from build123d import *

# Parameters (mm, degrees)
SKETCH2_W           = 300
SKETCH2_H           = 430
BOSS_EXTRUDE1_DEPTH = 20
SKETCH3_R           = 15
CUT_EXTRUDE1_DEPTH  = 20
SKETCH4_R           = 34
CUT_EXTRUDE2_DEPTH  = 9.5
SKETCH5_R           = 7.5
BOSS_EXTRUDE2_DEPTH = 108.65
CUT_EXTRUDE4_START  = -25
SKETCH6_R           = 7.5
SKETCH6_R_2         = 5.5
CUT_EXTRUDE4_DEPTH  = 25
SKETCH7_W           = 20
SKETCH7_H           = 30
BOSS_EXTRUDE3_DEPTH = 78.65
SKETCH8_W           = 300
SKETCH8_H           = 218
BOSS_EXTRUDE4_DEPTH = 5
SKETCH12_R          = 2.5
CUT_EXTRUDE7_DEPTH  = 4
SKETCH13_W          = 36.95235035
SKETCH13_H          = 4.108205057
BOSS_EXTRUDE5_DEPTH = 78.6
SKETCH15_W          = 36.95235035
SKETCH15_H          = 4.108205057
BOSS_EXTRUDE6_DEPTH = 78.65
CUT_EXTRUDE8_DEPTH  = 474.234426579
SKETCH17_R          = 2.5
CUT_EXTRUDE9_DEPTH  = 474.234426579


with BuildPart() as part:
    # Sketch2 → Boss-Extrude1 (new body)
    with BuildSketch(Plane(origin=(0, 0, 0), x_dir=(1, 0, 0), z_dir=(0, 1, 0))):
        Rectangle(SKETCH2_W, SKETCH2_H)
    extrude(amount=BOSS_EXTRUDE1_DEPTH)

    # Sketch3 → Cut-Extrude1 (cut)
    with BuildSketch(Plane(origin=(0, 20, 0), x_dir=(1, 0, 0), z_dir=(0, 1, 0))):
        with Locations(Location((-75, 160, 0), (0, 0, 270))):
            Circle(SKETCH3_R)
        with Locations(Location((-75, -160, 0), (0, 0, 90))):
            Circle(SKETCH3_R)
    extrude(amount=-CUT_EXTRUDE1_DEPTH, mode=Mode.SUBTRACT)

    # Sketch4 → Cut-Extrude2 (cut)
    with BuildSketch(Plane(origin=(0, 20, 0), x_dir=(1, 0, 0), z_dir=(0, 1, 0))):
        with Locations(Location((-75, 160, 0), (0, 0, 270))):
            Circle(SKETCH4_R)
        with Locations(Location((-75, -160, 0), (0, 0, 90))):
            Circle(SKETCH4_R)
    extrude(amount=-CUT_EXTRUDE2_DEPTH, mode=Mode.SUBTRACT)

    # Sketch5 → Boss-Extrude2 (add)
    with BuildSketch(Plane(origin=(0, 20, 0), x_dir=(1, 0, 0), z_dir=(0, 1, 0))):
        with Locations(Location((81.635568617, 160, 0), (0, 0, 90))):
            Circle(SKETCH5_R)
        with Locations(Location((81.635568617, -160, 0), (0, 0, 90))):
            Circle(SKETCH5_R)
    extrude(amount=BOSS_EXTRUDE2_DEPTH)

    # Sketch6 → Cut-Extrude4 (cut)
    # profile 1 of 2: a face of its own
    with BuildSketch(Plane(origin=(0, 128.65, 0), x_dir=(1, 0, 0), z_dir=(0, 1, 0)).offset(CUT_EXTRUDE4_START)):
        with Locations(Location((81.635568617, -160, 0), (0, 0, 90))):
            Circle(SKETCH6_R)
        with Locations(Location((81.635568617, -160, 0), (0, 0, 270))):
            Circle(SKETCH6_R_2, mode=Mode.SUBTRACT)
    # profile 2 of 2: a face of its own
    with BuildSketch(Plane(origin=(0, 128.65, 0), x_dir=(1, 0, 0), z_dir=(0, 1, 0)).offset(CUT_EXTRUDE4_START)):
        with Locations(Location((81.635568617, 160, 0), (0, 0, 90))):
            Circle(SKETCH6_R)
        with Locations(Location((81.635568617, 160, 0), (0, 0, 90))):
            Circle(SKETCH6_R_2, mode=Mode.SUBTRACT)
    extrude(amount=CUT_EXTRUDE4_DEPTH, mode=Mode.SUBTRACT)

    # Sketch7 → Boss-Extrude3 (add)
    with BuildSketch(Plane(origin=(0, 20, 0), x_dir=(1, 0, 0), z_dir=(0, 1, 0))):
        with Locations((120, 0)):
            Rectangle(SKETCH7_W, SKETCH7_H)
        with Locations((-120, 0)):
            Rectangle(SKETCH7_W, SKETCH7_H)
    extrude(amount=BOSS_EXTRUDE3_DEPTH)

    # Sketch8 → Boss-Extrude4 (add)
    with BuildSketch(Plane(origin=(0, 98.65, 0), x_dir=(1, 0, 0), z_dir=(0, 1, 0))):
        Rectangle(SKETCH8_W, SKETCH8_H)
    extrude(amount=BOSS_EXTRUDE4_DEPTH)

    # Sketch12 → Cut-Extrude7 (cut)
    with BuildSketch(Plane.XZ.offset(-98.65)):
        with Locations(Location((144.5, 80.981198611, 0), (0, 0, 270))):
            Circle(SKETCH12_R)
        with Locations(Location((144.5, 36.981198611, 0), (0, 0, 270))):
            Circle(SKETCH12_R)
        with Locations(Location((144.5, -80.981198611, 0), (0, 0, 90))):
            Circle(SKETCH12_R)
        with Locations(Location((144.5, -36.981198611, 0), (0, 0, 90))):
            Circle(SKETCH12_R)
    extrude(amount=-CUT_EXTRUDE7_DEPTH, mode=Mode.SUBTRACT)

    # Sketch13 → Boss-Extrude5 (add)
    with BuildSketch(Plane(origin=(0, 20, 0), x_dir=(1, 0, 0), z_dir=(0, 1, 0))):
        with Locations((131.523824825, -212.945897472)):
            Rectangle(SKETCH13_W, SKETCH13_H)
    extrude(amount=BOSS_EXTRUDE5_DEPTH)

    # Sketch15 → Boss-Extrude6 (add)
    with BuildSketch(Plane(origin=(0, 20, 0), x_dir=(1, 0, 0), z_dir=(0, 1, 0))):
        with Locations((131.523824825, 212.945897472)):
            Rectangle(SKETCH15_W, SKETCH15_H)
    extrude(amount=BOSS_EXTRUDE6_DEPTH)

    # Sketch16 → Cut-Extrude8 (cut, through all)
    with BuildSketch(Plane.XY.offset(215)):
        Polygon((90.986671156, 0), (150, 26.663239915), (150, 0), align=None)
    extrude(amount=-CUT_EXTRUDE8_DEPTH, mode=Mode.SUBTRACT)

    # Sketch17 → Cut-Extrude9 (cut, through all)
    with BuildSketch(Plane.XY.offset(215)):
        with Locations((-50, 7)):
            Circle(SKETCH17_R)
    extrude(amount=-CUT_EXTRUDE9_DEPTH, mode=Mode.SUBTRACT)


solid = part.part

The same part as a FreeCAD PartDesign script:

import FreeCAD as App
import Part
import Sketcher

V = App.Vector
Q = App.Units.Quantity

doc = App.newDocument("Part")
body = doc.addObject("PartDesign::Body", "Body")

sketch1 = body.newObject("Sketcher::SketchObject", "Sketch")
sketch1.AttachmentSupport = (doc.getObject("XZ_Plane"), [""])
sketch1.MapMode = "FlatFace"
sketch1.addGeometry(Part.LineSegment(V(-150, -215, 0), V(-150, 215, 0)), False)
sketch1.addGeometry(Part.LineSegment(V(-150, 215, 0), V(150, 215, 0)), False)
sketch1.addGeometry(Part.LineSegment(V(150, 215, 0), V(150, -215, 0)), False)
sketch1.addGeometry(Part.LineSegment(V(150, -215, 0), V(-150, -215, 0)), False)
sketch1.addConstraint(Sketcher.Constraint("Coincident", 0, 2, 1, 1))
sketch1.addConstraint(Sketcher.Constraint("Coincident", 1, 2, 2, 1))
sketch1.addConstraint(Sketcher.Constraint("Coincident", 2, 2, 3, 1))
sketch1.addConstraint(Sketcher.Constraint("Coincident", 3, 2, 0, 1))
sketch1.addConstraint(Sketcher.Constraint("Vertical", 0))
sketch1.addConstraint(Sketcher.Constraint("Horizontal", 1))
sketch1.addConstraint(Sketcher.Constraint("Vertical", 2))
sketch1.addConstraint(Sketcher.Constraint("Horizontal", 3))
sketch1.addConstraint(Sketcher.Constraint("Symmetric", 0, 2, 2, 2, -1, 1))
sketch1.addConstraint(Sketcher.Constraint("DistanceX", 1, 1, 1, 2, Q("300 mm")))
sketch1.addConstraint(Sketcher.Constraint("DistanceY", 0, 1, 0, 2, Q("430 mm")))
pad1 = body.newObject("PartDesign::Pad", "Pad")
pad1.Profile = sketch1
pad1.Length = 20
pad1.Reversed = True

sketch2 = body.newObject("Sketcher::SketchObject", "Sketch001")
sketch2.AttachmentSupport = (doc.getObject("XZ_Plane"), [""])
sketch2.MapMode = "FlatFace"
sketch2.AttachmentOffset = App.Placement(V(0, 0, -20), App.Rotation())
sketch2.addGeometry(Part.Circle(V(-75, -160, 0), V(0, 0, 1), 15), False)
sketch2.addGeometry(Part.Circle(V(-75, 160, 0), V(0, 0, 1), 15), False)
sketch2.addConstraint(Sketcher.Constraint("Equal", 0, 1))
sketch2.addConstraint(Sketcher.Constraint("Symmetric", 0, 3, 1, 3, -1))
sketch2.addConstraint(Sketcher.Constraint("Diameter", 0, Q("30 mm")))
sketch2.addConstraint(Sketcher.Constraint("DistanceX", 0, 3, -1, 1, Q("75 mm")))
sketch2.addConstraint(Sketcher.Constraint("DistanceY", 0, 3, -1, 1, Q("160 mm")))
pocket1 = body.newObject("PartDesign::Pocket", "Pocket")
pocket1.Profile = sketch2
pocket1.Length = 20
pocket1.Reversed = True

sketch3 = body.newObject("Sketcher::SketchObject", "Sketch002")
sketch3.AttachmentSupport = (doc.getObject("XZ_Plane"), [""])
sketch3.MapMode = "FlatFace"
sketch3.AttachmentOffset = App.Placement(V(0, 0, -20), App.Rotation())
sketch3.addGeometry(Part.Circle(V(-75, -160, 0), V(0, 0, 1), 34), False)
sketch3.addGeometry(Part.Circle(V(-75, 160, 0), V(0, 0, 1), 34), False)
sketch3.addConstraint(Sketcher.Constraint("Equal", 0, 1))
sketch3.addConstraint(Sketcher.Constraint("Symmetric", 0, 3, 1, 3, -1))
sketch3.addConstraint(Sketcher.Constraint("Diameter", 0, Q("68 mm")))
sketch3.addConstraint(Sketcher.Constraint("DistanceX", 0, 3, -1, 1, Q("75 mm")))
sketch3.addConstraint(Sketcher.Constraint("DistanceY", 0, 3, -1, 1, Q("160 mm")))
pocket2 = body.newObject("PartDesign::Pocket", "Pocket001")
pocket2.Profile = sketch3
pocket2.Length = 9.5
pocket2.Reversed = True

sketch4 = body.newObject("Sketcher::SketchObject", "Sketch003")
sketch4.AttachmentSupport = (doc.getObject("XZ_Plane"), [""])
sketch4.MapMode = "FlatFace"
sketch4.AttachmentOffset = App.Placement(V(0, 0, -20), App.Rotation())
sketch4.addGeometry(Part.Circle(V(81.635569, -160, 0), V(0, 0, 1), 7.5), False)
sketch4.addGeometry(Part.Circle(V(81.635569, 160, 0), V(0, 0, 1), 7.5), False)
sketch4.addConstraint(Sketcher.Constraint("Equal", 0, 1))
sketch4.addConstraint(Sketcher.Constraint("Symmetric", 0, 3, 1, 3, -1))
sketch4.addConstraint(Sketcher.Constraint("Diameter", 0, Q("15 mm")))
sketch4.addConstraint(Sketcher.Constraint("DistanceY", 0, 3, -1, 1, Q("160 mm")))
sketch4.addConstraint(Sketcher.Constraint("DistanceX", -1, 1, 0, 3, Q("81.635569 mm")))
pad2 = body.newObject("PartDesign::Pad", "Pad001")
pad2.Profile = sketch4
pad2.Length = 108.65
pad2.Reversed = True

sketch5 = body.newObject("Sketcher::SketchObject", "Sketch004")
sketch5.AttachmentSupport = (doc.getObject("XZ_Plane"), [""])
sketch5.MapMode = "FlatFace"
sketch5.AttachmentOffset = App.Placement(V(0, 0, -103.65), App.Rotation())
sketch5.addGeometry(Part.Circle(V(81.635569, 160, 0), V(0, 0, 1), 7.5), False)
sketch5.addGeometry(Part.Circle(V(81.635569, 160, 0), V(0, 0, 1), 5.5), False)
sketch5.addGeometry(Part.Circle(V(81.635569, -160, 0), V(0, 0, 1), 7.5), False)
sketch5.addGeometry(Part.Circle(V(81.635569, -160, 0), V(0, 0, 1), 5.5), False)
sketch5.addConstraint(Sketcher.Constraint("Coincident", 1, 3, 0, 3))
sketch5.addConstraint(Sketcher.Constraint("Coincident", 3, 3, 2, 3))
sketch5.addConstraint(Sketcher.Constraint("Equal", 0, 2))
sketch5.addConstraint(Sketcher.Constraint("Equal", 1, 3))
sketch5.addConstraint(Sketcher.Constraint("Symmetric", 0, 3, 2, 3, -1))
sketch5.addConstraint(Sketcher.Constraint("Diameter", 0, Q("15 mm")))
sketch5.addConstraint(Sketcher.Constraint("Diameter", 1, Q("11 mm")))
sketch5.addConstraint(Sketcher.Constraint("DistanceY", -1, 1, 0, 3, Q("160 mm")))
sketch5.addConstraint(Sketcher.Constraint("DistanceX", -1, 1, 0, 3, Q("81.635569 mm")))
pocket3 = body.newObject("PartDesign::Pocket", "Pocket002")
pocket3.Profile = sketch5
pocket3.Length = 25

sketch6 = body.newObject("Sketcher::SketchObject", "Sketch005")
sketch6.AttachmentSupport = (doc.getObject("XZ_Plane"), [""])
sketch6.MapMode = "FlatFace"
sketch6.AttachmentOffset = App.Placement(V(0, 0, -20), App.Rotation())
sketch6.addGeometry(Part.LineSegment(V(110, -15, 0), V(110, 15, 0)), False)
sketch6.addGeometry(Part.LineSegment(V(110, 15, 0), V(130, 15, 0)), False)
sketch6.addGeometry(Part.LineSegment(V(130, 15, 0), V(130, -15, 0)), False)
sketch6.addGeometry(Part.LineSegment(V(130, -15, 0), V(110, -15, 0)), False)
sketch6.addGeometry(Part.LineSegment(V(-130, -15, 0), V(-130, 15, 0)), False)
sketch6.addGeometry(Part.LineSegment(V(-130, 15, 0), V(-110, 15, 0)), False)
sketch6.addGeometry(Part.LineSegment(V(-110, 15, 0), V(-110, -15, 0)), False)
sketch6.addGeometry(Part.LineSegment(V(-110, -15, 0), V(-130, -15, 0)), False)
sketch6.addConstraint(Sketcher.Constraint("Coincident", 0, 2, 1, 1))
sketch6.addConstraint(Sketcher.Constraint("Coincident", 1, 2, 2, 1))
sketch6.addConstraint(Sketcher.Constraint("Coincident", 2, 2, 3, 1))
sketch6.addConstraint(Sketcher.Constraint("Coincident", 3, 2, 0, 1))
sketch6.addConstraint(Sketcher.Constraint("Coincident", 4, 2, 5, 1))
sketch6.addConstraint(Sketcher.Constraint("Coincident", 5, 2, 6, 1))
sketch6.addConstraint(Sketcher.Constraint("Coincident", 6, 2, 7, 1))
sketch6.addConstraint(Sketcher.Constraint("Coincident", 7, 2, 4, 1))
sketch6.addConstraint(Sketcher.Constraint("Vertical", 0))
sketch6.addConstraint(Sketcher.Constraint("Horizontal", 1))
sketch6.addConstraint(Sketcher.Constraint("Vertical", 2))
sketch6.addConstraint(Sketcher.Constraint("Horizontal", 3))
sketch6.addConstraint(Sketcher.Constraint("Vertical", 4))
sketch6.addConstraint(Sketcher.Constraint("Horizontal", 5))
sketch6.addConstraint(Sketcher.Constraint("Vertical", 6))
sketch6.addConstraint(Sketcher.Constraint("Horizontal", 7))
sketch6.addConstraint(Sketcher.Constraint("Symmetric", 2, 2, 4, 2, -1, 1))
sketch6.addConstraint(Sketcher.Constraint("Symmetric", 0, 2, 6, 2, -1, 1))
sketch6.addConstraint(Sketcher.Constraint("Horizontal", 1, 2, 4, 2))
sketch6.addConstraint(Sketcher.Constraint("DistanceX", 1, 1, 1, 2, Q("20 mm")))
sketch6.addConstraint(Sketcher.Constraint("DistanceY", 0, 1, 0, 2, Q("30 mm")))
sketch6.addConstraint(Sketcher.Constraint("DistanceX", -1, 1, 0, 2, Q("110 mm")))
pad3 = body.newObject("PartDesign::Pad", "Pad002")
pad3.Profile = sketch6
pad3.Length = 78.65
pad3.Reversed = True

sketch7 = body.newObject("Sketcher::SketchObject", "Sketch006")
sketch7.AttachmentSupport = (doc.getObject("XZ_Plane"), [""])
sketch7.MapMode = "FlatFace"
sketch7.AttachmentOffset = App.Placement(V(0, 0, -98.65), App.Rotation())
sketch7.addGeometry(Part.LineSegment(V(-150, -109, 0), V(-150, 109, 0)), False)
sketch7.addGeometry(Part.LineSegment(V(-150, 109, 0), V(150, 109, 0)), False)
sketch7.addGeometry(Part.LineSegment(V(150, 109, 0), V(150, -109, 0)), False)
sketch7.addGeometry(Part.LineSegment(V(150, -109, 0), V(-150, -109, 0)), False)
sketch7.addConstraint(Sketcher.Constraint("Coincident", 0, 2, 1, 1))
sketch7.addConstraint(Sketcher.Constraint("Coincident", 1, 2, 2, 1))
sketch7.addConstraint(Sketcher.Constraint("Coincident", 2, 2, 3, 1))
sketch7.addConstraint(Sketcher.Constraint("Coincident", 3, 2, 0, 1))
sketch7.addConstraint(Sketcher.Constraint("Vertical", 0))
sketch7.addConstraint(Sketcher.Constraint("Horizontal", 1))
sketch7.addConstraint(Sketcher.Constraint("Vertical", 2))
sketch7.addConstraint(Sketcher.Constraint("Horizontal", 3))
sketch7.addConstraint(Sketcher.Constraint("Symmetric", 0, 2, 2, 2, -1, 1))
sketch7.addConstraint(Sketcher.Constraint("DistanceX", 1, 1, 1, 2, Q("300 mm")))
sketch7.addConstraint(Sketcher.Constraint("DistanceY", 0, 1, 0, 2, Q("218 mm")))
pad4 = body.newObject("PartDesign::Pad", "Pad003")
pad4.Profile = sketch7
pad4.Length = 5
pad4.Reversed = True

sketch8 = body.newObject("Sketcher::SketchObject", "Sketch007")
sketch8.AttachmentSupport = (doc.getObject("XZ_Plane"), [""])
sketch8.MapMode = "FlatFace"
sketch8.AttachmentOffset = App.Placement(V(0, 0, -98.65), App.Rotation())
sketch8.addGeometry(Part.Circle(V(144.5, 80.981199, 0), V(0, 0, 1), 2.5), False)
sketch8.addGeometry(Part.Circle(V(144.5, 36.981199, 0), V(0, 0, 1), 2.5), False)
sketch8.addGeometry(Part.Circle(V(144.5, -80.981199, 0), V(0, 0, 1), 2.5), False)
sketch8.addGeometry(Part.Circle(V(144.5, -36.981199, 0), V(0, 0, 1), 2.5), False)
sketch8.addConstraint(Sketcher.Constraint("Equal", 0, 1))
sketch8.addConstraint(Sketcher.Constraint("Equal", 1, 2))
sketch8.addConstraint(Sketcher.Constraint("Equal", 2, 3))
sketch8.addConstraint(Sketcher.Constraint("Symmetric", 0, 3, 2, 3, -1))
sketch8.addConstraint(Sketcher.Constraint("Symmetric", 1, 3, 3, 3, -1))
sketch8.addConstraint(Sketcher.Constraint("Vertical", 0, 3, 1, 3))
sketch8.addConstraint(Sketcher.Constraint("Diameter", 0, Q("5 mm")))
sketch8.addConstraint(Sketcher.Constraint("DistanceY", 1, 3, 0, 3, Q("44 mm")))
sketch8.addConstraint(Sketcher.Constraint("DistanceX", -1, 1, 0, 3, Q("144.5 mm")))
sketch8.addConstraint(Sketcher.Constraint("DistanceY", -1, 1, 0, 3, Q("80.981199 mm")))
pocket4 = body.newObject("PartDesign::Pocket", "Pocket003")
pocket4.Profile = sketch8
pocket4.Length = 4

sketch9 = body.newObject("Sketcher::SketchObject", "Sketch008")
sketch9.AttachmentSupport = (doc.getObject("XZ_Plane"), [""])
sketch9.MapMode = "FlatFace"
sketch9.AttachmentOffset = App.Placement(V(0, 0, -20), App.Rotation())
sketch9.addGeometry(Part.LineSegment(V(113.04765, 210.891795, 0), V(113.04765, 215, 0)), False)
sketch9.addGeometry(Part.LineSegment(V(113.04765, 215, 0), V(150, 215, 0)), False)
sketch9.addGeometry(Part.LineSegment(V(150, 215, 0), V(150, 210.891795, 0)), False)
sketch9.addGeometry(Part.LineSegment(V(150, 210.891795, 0), V(113.04765, 210.891795, 0)), False)
sketch9.addConstraint(Sketcher.Constraint("Coincident", 0, 2, 1, 1))
sketch9.addConstraint(Sketcher.Constraint("Coincident", 1, 2, 2, 1))
sketch9.addConstraint(Sketcher.Constraint("Coincident", 2, 2, 3, 1))
sketch9.addConstraint(Sketcher.Constraint("Coincident", 3, 2, 0, 1))
sketch9.addConstraint(Sketcher.Constraint("Vertical", 0))
sketch9.addConstraint(Sketcher.Constraint("Horizontal", 1))
sketch9.addConstraint(Sketcher.Constraint("Vertical", 2))
sketch9.addConstraint(Sketcher.Constraint("Horizontal", 3))
sketch9.addConstraint(Sketcher.Constraint("DistanceY", -1, 1, 0, 2, Q("215 mm")))
sketch9.addConstraint(Sketcher.Constraint("DistanceX", -1, 1, 1, 2, Q("150 mm")))
sketch9.addConstraint(Sketcher.Constraint("DistanceX", 1, 1, 1, 2, Q("36.95235 mm")))
sketch9.addConstraint(Sketcher.Constraint("DistanceY", 0, 1, 0, 2, Q("4.108205 mm")))
pad5 = body.newObject("PartDesign::Pad", "Pad004")
pad5.Profile = sketch9
pad5.Length = 78.6
pad5.Reversed = True

sketch10 = body.newObject("Sketcher::SketchObject", "Sketch009")
sketch10.AttachmentSupport = (doc.getObject("XZ_Plane"), [""])
sketch10.MapMode = "FlatFace"
sketch10.AttachmentOffset = App.Placement(V(0, 0, -20), App.Rotation())
sketch10.addGeometry(Part.LineSegment(V(113.04765, -215, 0), V(113.04765, -210.891795, 0)), False)
sketch10.addGeometry(Part.LineSegment(V(113.04765, -210.891795, 0), V(150, -210.891795, 0)), False)
sketch10.addGeometry(Part.LineSegment(V(150, -210.891795, 0), V(150, -215, 0)), False)
sketch10.addGeometry(Part.LineSegment(V(150, -215, 0), V(113.04765, -215, 0)), False)
sketch10.addConstraint(Sketcher.Constraint("Coincident", 0, 2, 1, 1))
sketch10.addConstraint(Sketcher.Constraint("Coincident", 1, 2, 2, 1))
sketch10.addConstraint(Sketcher.Constraint("Coincident", 2, 2, 3, 1))
sketch10.addConstraint(Sketcher.Constraint("Coincident", 3, 2, 0, 1))
sketch10.addConstraint(Sketcher.Constraint("Vertical", 0))
sketch10.addConstraint(Sketcher.Constraint("Horizontal", 1))
sketch10.addConstraint(Sketcher.Constraint("Vertical", 2))
sketch10.addConstraint(Sketcher.Constraint("Horizontal", 3))
sketch10.addConstraint(Sketcher.Constraint("DistanceX", -1, 1, 1, 2, Q("150 mm")))
sketch10.addConstraint(Sketcher.Constraint("DistanceY", 2, 2, -1, 1, Q("215 mm")))
sketch10.addConstraint(Sketcher.Constraint("DistanceX", 1, 1, 1, 2, Q("36.95235 mm")))
sketch10.addConstraint(Sketcher.Constraint("DistanceY", 0, 1, 0, 2, Q("4.108205 mm")))
pad6 = body.newObject("PartDesign::Pad", "Pad005")
pad6.Profile = sketch10
pad6.Length = 78.65
pad6.Reversed = True

sketch11 = body.newObject("Sketcher::SketchObject", "Sketch010")
sketch11.AttachmentSupport = (doc.getObject("XY_Plane"), [""])
sketch11.MapMode = "FlatFace"
sketch11.AttachmentOffset = App.Placement(V(0, 0, 215), App.Rotation())
sketch11.addGeometry(Part.LineSegment(V(150, 26.66324, 0), V(90.986671, 0, 0)), False)
sketch11.addGeometry(Part.LineSegment(V(90.986671, 0, 0), V(150, 0, 0)), False)
sketch11.addGeometry(Part.LineSegment(V(150, 0, 0), V(150, 26.66324, 0)), False)
sketch11.addConstraint(Sketcher.Constraint("Coincident", 0, 2, 1, 1))
sketch11.addConstraint(Sketcher.Constraint("Coincident", 1, 2, 2, 1))
sketch11.addConstraint(Sketcher.Constraint("Coincident", 2, 2, 0, 1))
sketch11.addConstraint(Sketcher.Constraint("Horizontal", 1))
sketch11.addConstraint(Sketcher.Constraint("Vertical", 2))
sketch11.addConstraint(Sketcher.Constraint("PointOnObject", 0, 2, -1))
sketch11.addConstraint(Sketcher.Constraint("DistanceX", -1, 1, 1, 2, Q("150 mm")))
sketch11.addConstraint(Sketcher.Constraint("DistanceX", 1, 1, 1, 2, Q("59.013329 mm")))
sketch11.addConstraint(Sketcher.Constraint("DistanceY", 2, 1, 2, 2, Q("26.66324 mm")))
pocket5 = body.newObject("PartDesign::Pocket", "Pocket004")
pocket5.Profile = sketch11
pocket5.Type = "ThroughAll"

sketch12 = body.newObject("Sketcher::SketchObject", "Sketch011")
sketch12.AttachmentSupport = (doc.getObject("XY_Plane"), [""])
sketch12.MapMode = "FlatFace"
sketch12.AttachmentOffset = App.Placement(V(0, 0, 215), App.Rotation())
sketch12.addGeometry(Part.Circle(V(-50, 7, 0), V(0, 0, 1), 2.5), False)
sketch12.addConstraint(Sketcher.Constraint("Diameter", 0, Q("5 mm")))
sketch12.addConstraint(Sketcher.Constraint("DistanceX", 0, 3, -1, 1, Q("50 mm")))
sketch12.addConstraint(Sketcher.Constraint("DistanceY", -1, 1, 0, 3, Q("7 mm")))
pocket6 = body.newObject("PartDesign::Pocket", "Pocket005")
pocket6.Profile = sketch12
pocket6.Type = "ThroughAll"

doc.recompute()
